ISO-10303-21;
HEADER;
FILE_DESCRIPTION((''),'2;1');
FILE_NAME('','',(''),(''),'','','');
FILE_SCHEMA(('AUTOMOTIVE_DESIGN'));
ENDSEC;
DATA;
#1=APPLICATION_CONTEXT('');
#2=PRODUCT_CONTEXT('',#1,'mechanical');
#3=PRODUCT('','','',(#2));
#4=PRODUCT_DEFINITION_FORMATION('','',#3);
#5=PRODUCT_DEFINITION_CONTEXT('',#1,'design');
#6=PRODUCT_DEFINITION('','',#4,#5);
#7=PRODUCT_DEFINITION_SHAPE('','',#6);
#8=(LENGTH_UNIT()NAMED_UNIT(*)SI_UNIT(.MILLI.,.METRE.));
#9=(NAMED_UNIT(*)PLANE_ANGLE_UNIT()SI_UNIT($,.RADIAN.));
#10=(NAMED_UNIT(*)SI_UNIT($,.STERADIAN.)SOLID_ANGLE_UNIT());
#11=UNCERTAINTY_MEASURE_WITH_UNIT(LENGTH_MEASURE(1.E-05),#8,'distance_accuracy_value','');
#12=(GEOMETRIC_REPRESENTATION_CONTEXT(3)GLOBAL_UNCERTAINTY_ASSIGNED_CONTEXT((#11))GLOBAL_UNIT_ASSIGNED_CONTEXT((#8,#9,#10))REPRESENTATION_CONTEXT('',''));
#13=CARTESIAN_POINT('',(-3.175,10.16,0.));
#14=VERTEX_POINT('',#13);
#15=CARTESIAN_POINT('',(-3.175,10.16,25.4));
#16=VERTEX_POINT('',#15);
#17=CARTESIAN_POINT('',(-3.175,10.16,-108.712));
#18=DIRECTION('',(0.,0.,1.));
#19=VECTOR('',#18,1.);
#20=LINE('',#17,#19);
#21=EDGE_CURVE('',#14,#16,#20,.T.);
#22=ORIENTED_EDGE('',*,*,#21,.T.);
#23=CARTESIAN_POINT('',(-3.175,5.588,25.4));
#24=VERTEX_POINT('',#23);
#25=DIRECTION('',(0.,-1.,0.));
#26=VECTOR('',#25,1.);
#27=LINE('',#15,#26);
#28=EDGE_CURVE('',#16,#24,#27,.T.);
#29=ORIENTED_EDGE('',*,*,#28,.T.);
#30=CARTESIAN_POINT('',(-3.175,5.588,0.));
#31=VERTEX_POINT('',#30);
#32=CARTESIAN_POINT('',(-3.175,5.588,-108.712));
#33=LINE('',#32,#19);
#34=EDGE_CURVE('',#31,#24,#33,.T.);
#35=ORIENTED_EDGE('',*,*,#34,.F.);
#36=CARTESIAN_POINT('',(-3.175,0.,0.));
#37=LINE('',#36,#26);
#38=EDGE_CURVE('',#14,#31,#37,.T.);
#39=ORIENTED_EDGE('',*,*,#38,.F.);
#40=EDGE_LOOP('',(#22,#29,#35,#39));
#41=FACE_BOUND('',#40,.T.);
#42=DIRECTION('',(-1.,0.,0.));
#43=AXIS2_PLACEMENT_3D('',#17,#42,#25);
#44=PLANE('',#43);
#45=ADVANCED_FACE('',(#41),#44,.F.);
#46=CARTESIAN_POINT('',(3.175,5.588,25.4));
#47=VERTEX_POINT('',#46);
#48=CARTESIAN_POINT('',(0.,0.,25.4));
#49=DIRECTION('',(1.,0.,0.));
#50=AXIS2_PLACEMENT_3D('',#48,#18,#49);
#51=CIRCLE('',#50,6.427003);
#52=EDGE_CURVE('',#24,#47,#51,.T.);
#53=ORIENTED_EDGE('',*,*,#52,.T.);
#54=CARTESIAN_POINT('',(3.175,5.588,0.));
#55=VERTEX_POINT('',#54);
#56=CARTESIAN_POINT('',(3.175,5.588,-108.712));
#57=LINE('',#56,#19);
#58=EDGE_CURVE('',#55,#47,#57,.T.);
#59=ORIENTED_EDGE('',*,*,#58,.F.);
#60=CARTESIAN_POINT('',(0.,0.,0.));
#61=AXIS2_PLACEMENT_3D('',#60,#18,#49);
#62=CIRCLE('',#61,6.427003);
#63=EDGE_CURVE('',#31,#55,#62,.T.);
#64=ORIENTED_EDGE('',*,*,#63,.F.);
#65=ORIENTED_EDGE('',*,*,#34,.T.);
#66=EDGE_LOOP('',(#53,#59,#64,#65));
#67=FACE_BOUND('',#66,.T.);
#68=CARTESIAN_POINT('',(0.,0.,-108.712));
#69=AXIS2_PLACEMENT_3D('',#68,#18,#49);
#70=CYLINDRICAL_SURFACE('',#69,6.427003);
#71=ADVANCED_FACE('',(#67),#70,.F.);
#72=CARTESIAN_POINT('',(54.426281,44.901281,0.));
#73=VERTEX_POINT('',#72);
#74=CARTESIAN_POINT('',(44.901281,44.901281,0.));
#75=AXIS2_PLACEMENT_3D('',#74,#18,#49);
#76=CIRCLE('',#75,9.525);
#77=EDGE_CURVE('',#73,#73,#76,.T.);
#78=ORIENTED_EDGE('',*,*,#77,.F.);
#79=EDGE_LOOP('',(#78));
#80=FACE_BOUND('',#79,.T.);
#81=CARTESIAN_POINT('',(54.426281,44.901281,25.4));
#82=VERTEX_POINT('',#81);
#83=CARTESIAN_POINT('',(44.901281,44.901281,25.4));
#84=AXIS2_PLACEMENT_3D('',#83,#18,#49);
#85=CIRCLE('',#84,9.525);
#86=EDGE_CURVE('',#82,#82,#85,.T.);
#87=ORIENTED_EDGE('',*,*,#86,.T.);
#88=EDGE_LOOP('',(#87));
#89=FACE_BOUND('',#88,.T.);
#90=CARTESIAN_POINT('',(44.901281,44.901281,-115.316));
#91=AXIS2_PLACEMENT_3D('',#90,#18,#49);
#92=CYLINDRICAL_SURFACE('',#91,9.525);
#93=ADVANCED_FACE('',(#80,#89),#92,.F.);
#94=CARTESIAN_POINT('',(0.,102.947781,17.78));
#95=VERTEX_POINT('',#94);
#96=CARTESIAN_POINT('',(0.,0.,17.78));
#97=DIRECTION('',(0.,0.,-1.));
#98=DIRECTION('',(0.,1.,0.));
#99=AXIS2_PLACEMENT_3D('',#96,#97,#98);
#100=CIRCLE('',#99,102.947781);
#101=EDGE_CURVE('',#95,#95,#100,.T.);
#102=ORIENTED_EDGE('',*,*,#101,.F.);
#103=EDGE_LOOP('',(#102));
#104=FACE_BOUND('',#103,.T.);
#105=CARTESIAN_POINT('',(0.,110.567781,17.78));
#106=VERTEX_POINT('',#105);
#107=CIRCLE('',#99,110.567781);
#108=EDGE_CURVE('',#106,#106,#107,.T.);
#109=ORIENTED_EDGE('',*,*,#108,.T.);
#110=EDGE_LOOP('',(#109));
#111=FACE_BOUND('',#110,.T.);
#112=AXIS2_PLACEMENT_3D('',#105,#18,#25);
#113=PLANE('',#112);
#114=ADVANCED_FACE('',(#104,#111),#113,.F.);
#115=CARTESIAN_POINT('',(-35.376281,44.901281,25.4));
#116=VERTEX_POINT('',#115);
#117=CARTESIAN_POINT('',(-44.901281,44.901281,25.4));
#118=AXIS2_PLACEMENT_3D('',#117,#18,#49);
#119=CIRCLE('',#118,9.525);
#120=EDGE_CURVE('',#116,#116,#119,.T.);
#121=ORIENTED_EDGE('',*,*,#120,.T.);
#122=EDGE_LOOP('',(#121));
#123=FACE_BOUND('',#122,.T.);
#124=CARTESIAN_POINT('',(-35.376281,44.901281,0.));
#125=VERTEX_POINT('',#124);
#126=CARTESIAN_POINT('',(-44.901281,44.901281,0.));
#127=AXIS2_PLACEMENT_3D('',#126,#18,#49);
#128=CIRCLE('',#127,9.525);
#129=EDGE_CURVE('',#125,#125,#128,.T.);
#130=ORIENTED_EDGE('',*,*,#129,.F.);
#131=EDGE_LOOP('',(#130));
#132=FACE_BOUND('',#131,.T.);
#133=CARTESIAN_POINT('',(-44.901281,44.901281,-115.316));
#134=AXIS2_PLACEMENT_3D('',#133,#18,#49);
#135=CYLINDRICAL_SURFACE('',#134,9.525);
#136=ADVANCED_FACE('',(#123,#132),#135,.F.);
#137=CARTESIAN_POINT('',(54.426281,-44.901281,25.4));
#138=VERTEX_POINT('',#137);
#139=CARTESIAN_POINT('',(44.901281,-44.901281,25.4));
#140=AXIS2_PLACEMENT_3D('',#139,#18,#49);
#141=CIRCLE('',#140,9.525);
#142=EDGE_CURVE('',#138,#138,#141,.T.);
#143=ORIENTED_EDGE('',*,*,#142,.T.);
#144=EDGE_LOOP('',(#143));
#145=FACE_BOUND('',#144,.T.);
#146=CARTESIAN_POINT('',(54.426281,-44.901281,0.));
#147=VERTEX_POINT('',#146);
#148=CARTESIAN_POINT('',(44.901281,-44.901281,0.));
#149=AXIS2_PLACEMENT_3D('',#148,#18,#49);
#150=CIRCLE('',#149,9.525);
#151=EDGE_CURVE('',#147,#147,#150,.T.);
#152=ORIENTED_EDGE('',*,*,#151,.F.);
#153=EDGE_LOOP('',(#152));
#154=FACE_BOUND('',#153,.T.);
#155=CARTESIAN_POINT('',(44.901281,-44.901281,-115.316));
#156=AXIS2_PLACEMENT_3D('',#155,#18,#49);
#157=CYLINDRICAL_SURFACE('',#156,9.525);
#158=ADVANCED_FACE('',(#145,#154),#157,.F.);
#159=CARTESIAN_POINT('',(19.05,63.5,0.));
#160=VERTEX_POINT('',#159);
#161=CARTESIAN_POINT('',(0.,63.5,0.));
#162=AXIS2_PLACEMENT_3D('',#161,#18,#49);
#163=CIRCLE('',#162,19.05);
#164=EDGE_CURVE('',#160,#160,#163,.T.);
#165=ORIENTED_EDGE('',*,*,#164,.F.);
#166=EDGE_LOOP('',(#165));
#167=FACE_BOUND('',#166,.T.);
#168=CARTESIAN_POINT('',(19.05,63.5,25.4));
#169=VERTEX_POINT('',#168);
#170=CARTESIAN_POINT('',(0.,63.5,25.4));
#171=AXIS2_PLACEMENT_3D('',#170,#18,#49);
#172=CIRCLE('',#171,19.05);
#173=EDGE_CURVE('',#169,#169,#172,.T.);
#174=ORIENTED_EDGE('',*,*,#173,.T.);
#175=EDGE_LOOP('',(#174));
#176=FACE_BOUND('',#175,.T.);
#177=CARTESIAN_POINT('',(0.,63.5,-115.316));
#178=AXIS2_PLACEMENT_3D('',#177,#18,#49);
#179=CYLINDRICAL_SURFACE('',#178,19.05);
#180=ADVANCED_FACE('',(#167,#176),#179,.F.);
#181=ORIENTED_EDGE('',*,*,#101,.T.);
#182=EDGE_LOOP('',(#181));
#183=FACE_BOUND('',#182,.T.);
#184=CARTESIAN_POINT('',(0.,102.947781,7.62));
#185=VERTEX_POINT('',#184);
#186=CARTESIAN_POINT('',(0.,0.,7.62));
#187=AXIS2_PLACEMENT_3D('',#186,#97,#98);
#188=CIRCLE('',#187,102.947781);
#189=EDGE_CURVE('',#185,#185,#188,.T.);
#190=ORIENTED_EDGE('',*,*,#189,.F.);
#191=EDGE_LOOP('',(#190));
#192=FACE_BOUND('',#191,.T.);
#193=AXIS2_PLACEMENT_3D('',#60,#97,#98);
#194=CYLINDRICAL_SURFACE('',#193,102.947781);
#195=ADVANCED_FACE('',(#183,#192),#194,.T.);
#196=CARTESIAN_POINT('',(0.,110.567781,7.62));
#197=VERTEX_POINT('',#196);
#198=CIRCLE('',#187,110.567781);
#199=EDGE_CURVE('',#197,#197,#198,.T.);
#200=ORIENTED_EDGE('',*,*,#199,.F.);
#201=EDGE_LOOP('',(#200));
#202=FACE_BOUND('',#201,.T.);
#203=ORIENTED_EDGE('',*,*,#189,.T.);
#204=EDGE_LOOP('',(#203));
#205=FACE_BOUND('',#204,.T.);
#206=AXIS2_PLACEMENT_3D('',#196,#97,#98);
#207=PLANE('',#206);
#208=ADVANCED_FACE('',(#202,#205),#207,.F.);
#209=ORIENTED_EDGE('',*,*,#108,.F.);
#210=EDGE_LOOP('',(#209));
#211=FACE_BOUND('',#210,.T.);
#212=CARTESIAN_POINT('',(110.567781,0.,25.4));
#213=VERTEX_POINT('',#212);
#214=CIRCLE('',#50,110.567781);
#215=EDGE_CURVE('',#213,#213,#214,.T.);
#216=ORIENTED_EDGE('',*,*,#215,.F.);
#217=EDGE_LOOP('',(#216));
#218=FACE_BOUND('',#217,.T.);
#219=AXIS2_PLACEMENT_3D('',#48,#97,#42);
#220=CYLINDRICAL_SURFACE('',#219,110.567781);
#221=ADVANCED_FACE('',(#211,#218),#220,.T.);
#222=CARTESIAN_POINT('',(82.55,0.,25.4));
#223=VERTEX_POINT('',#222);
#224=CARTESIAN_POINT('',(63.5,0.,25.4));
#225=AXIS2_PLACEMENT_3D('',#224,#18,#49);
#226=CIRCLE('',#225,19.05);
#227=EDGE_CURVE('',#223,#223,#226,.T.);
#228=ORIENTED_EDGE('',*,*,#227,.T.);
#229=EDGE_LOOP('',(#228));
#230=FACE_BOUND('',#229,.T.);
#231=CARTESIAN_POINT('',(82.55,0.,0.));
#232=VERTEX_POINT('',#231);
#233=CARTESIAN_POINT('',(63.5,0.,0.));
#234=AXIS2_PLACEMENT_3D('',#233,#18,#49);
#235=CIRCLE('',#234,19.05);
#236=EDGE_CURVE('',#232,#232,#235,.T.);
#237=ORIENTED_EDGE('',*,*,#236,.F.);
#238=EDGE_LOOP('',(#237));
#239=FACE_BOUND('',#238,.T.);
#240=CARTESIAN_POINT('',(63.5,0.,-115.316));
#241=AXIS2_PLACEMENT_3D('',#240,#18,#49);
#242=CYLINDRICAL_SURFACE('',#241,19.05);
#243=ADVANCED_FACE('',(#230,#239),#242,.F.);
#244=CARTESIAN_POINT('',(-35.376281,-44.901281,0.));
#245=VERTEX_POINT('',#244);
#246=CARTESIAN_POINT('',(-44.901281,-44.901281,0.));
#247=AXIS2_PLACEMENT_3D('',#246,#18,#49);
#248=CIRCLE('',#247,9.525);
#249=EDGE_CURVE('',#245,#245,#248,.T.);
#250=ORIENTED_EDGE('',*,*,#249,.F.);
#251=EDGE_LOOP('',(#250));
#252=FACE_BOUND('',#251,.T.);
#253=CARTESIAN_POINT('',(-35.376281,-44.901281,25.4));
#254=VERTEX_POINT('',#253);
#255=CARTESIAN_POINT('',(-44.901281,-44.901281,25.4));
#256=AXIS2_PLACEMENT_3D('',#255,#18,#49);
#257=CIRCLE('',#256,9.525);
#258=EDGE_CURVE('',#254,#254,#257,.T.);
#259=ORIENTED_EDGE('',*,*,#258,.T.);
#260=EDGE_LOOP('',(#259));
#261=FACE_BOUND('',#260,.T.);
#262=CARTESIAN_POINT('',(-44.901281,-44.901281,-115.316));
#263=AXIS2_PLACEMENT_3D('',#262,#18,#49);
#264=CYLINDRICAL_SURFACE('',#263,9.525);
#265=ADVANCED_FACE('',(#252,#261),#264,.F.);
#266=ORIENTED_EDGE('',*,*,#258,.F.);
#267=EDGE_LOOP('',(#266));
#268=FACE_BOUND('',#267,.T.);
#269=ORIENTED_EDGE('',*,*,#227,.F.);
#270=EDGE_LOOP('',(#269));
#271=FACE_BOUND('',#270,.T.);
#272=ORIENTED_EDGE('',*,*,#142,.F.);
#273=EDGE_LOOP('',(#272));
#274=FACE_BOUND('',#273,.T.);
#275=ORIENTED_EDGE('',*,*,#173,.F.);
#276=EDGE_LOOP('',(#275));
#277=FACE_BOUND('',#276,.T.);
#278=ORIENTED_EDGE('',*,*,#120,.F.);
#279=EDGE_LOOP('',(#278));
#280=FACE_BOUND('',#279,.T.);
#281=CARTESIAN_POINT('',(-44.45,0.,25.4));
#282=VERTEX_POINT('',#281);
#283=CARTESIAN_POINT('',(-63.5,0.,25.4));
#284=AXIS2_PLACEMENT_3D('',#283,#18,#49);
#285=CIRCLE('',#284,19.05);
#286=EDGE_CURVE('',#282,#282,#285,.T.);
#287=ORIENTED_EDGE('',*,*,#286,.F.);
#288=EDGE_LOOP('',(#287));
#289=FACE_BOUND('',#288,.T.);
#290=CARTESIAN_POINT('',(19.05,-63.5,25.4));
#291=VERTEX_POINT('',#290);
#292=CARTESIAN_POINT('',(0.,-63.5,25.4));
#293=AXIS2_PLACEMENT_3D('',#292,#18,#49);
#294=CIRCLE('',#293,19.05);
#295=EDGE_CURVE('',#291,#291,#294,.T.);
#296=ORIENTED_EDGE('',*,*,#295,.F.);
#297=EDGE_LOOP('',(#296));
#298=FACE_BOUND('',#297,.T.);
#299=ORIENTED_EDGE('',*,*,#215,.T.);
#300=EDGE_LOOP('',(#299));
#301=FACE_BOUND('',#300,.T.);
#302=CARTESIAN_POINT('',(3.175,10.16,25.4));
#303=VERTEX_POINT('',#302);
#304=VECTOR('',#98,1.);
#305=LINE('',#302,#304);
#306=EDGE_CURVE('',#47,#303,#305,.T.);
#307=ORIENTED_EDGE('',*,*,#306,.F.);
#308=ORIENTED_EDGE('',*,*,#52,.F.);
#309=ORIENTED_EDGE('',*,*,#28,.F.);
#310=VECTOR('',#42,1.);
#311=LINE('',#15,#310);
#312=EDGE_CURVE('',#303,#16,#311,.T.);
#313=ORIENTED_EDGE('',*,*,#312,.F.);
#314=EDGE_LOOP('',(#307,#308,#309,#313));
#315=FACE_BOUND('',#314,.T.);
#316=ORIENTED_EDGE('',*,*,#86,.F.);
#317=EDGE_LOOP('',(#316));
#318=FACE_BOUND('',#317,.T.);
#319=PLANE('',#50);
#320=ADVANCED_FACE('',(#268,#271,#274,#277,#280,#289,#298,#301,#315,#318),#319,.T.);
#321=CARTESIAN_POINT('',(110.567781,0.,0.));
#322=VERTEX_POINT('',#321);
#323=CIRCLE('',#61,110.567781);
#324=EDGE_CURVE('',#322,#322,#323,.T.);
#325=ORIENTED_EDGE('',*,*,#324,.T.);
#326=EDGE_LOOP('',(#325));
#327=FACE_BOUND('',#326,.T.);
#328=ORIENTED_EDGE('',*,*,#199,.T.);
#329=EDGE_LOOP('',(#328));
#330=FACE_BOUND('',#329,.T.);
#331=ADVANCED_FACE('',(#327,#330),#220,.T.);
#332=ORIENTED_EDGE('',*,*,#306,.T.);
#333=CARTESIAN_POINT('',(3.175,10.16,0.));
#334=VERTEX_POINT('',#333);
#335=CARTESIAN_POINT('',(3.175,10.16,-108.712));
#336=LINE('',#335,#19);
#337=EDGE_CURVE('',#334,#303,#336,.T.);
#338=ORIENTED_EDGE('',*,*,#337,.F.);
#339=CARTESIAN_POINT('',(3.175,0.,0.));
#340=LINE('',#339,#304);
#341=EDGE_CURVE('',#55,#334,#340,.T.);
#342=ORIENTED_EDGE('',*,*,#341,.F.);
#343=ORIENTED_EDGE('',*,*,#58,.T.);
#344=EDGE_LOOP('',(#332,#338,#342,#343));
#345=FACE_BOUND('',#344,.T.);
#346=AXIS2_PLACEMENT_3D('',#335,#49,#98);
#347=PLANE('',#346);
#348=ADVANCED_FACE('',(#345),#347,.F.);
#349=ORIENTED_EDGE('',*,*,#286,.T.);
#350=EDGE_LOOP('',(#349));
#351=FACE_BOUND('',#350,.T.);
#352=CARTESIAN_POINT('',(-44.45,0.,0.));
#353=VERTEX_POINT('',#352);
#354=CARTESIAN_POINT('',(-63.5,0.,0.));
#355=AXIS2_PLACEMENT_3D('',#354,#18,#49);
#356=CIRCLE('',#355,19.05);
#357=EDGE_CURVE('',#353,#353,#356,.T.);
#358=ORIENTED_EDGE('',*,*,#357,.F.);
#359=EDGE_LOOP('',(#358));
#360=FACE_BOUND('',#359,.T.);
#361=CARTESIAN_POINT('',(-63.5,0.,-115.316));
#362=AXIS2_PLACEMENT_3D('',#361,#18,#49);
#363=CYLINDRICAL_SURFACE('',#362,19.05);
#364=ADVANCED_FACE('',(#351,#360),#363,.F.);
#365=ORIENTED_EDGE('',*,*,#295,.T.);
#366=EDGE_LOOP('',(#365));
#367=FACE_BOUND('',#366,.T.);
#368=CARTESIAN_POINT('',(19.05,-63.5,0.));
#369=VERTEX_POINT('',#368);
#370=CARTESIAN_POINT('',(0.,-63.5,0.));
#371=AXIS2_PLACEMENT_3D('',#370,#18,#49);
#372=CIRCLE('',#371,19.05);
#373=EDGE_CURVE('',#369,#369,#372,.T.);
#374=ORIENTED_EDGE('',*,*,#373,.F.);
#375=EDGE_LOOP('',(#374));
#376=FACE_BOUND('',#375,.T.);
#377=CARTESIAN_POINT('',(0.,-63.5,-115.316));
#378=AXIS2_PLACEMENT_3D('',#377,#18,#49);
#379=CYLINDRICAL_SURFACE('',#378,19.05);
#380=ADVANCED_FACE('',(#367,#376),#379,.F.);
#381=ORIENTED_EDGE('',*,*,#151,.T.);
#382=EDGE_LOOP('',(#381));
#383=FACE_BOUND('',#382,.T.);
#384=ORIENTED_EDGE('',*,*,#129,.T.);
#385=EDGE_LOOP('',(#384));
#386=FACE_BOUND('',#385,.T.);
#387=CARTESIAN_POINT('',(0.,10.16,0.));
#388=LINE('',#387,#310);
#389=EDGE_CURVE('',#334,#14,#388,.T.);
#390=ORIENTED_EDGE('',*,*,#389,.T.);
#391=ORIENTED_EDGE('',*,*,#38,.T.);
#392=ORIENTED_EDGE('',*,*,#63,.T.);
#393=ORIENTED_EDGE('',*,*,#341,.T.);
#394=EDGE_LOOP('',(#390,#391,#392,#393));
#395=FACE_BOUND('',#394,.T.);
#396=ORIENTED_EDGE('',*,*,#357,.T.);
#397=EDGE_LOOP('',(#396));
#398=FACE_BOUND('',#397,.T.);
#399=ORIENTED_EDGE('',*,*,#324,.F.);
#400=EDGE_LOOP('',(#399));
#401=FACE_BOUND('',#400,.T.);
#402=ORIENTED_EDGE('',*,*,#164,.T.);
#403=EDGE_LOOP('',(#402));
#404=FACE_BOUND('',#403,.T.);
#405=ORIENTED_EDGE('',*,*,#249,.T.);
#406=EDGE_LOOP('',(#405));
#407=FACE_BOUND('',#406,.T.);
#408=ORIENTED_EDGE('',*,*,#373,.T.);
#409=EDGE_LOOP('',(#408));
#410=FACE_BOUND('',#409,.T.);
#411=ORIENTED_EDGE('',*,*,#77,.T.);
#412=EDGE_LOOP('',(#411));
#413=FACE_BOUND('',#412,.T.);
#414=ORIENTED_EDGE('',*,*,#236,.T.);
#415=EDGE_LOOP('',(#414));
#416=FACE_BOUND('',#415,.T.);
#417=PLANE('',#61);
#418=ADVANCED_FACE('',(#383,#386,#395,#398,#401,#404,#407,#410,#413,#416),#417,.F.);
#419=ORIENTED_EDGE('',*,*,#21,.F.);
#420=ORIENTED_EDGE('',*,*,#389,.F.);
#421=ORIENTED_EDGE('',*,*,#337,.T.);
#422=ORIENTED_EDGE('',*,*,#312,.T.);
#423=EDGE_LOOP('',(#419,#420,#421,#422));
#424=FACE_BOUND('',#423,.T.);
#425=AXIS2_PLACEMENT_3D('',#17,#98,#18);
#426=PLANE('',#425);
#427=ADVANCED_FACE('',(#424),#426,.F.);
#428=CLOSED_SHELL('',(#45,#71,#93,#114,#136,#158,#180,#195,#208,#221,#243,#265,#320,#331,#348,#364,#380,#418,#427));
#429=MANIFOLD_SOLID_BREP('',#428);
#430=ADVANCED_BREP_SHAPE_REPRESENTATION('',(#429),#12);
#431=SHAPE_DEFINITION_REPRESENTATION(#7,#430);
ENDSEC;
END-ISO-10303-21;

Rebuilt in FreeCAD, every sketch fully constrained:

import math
import FreeCAD as App
import Part
import Sketcher
Q = App.Units.Quantity


def add_polygon(sketch, points):
    """Adds a closed chain of lines whose ends are joined by coincident constraints."""
    first, n = sketch.GeometryCount, len(points)
    for a, b in zip(points, points[1:] + points[:1]):
        sketch.addGeometry(Part.LineSegment(App.Vector(*a, 0), App.Vector(*b, 0)), False)
    for i in range(n):
        sketch.addConstraint(Sketcher.Constraint("Coincident", first + i, 2, first + (i + 1) % n, 1))

doc = App.newDocument("Part")
body = doc.addObject("PartDesign::Body", "Body")

# Sketch on XY plane
sketch1 = body.newObject("Sketcher::SketchObject", "Sketch")
sketch1.AttachmentSupport = (doc.getObject("XY_Plane"), [""])
sketch1.MapMode = "FlatFace"
sketch1.addGeometry(Part.Circle(App.Vector(0, 0, 0), App.Vector(0, 0, 1), 110.567781), False)
sketch1.addConstraint([
    Sketcher.Constraint("Coincident", 0, 3, -1, 1),
    Sketcher.Constraint("Diameter", 0, Q("221.135562 mm")),
])
pad1 = body.newObject("PartDesign::Pad", "Pad")
pad1.Profile = sketch1
pad1.Length = Q("1 in")

# Sketch on XY plane
sketch2 = body.newObject("Sketcher::SketchObject", "Sketch001")
sketch2.AttachmentSupport = (doc.getObject("XY_Plane"), [""])
sketch2.MapMode = "FlatFace"
sketch2.AttachmentOffset = App.Placement(App.Vector(0, 0, 1 * 25.4), App.Rotation())
sketch2.addGeometry([
    Part.Circle(App.Vector(0, 63.5, 0), App.Vector(0, 0, 1), 19.05),  # 0
    Part.Circle(App.Vector(63.5, 0, 0), App.Vector(0, 0, 1), 19.05),  # 1
    Part.Circle(App.Vector(44.901281, -44.901281, 0), App.Vector(0, 0, 1), 9.525),  # 2
    Part.Circle(App.Vector(0, -63.5, 0), App.Vector(0, 0, 1), 19.05),  # 3
    Part.Circle(App.Vector(44.901281, 44.901281, 0), App.Vector(0, 0, 1), 9.525),  # 4
    Part.Circle(App.Vector(-44.901281, -44.901281, 0), App.Vector(0, 0, 1), 9.525),  # 5
    Part.Circle(App.Vector(-63.5, 0, 0), App.Vector(0, 0, 1), 19.05),  # 6
    Part.Circle(App.Vector(-44.901281, 44.901281, 0), App.Vector(0, 0, 1), 9.525),  # 7
], False)
sketch2.addConstraint([
    Sketcher.Constraint("Equal", 0, 1),
    Sketcher.Constraint("Equal", 1, 3),
    Sketcher.Constraint("Equal", 2, 4),
    Sketcher.Constraint("Equal", 4, 5),
    Sketcher.Constraint("Equal", 3, 6),
    Sketcher.Constraint("Equal", 5, 7),
    Sketcher.Constraint("Symmetric", 0, 3, 3, 3, -1, 1),
    Sketcher.Constraint("Symmetric", 4, 3, 5, 3, -1, 1),
    Sketcher.Constraint("Symmetric", 1, 3, 6, 3, -1, 1),
    Sketcher.Constraint("Symmetric", 2, 3, 7, 3, -1, 1),
    Sketcher.Constraint("Symmetric", 2, 3, 5, 3, -2),
    Sketcher.Constraint("PointOnObject", 0, 3, -2),
    Sketcher.Constraint("PointOnObject", 1, 3, -1),
    Sketcher.Constraint("Diameter", 0, Q("1.5 in")),
    Sketcher.Constraint("Diameter", 2, Q("0.75 in")),
    Sketcher.Constraint("DistanceY", 3, 3, 0, 3, Q("5 in")),
    Sketcher.Constraint("DistanceX", -1, 1, 1, 3, Q("2.5 in")),
    Sketcher.Constraint("DistanceX", -1, 1, 2, 3, Q("44.901281 mm")),
    Sketcher.Constraint("DistanceY", 2, 3, -1, 1, Q("44.901281 mm")),
])
pocket1 = body.newObject("PartDesign::Pocket", "Pocket")
pocket1.Profile = sketch2
pocket1.Length = Q("5.54 in")

# Sketch on XY plane
sketch3 = body.newObject("Sketcher::SketchObject", "Sketch002")
sketch3.AttachmentSupport = (doc.getObject("XY_Plane"), [""])
sketch3.MapMode = "FlatFace"
sketch3.AttachmentOffset = App.Placement(App.Vector(0, 0, 1 * 25.4), App.Rotation())
sketch3.addGeometry([
    Part.LineSegment(App.Vector(3.175, 10.16, 0), App.Vector(-3.175, 10.16, 0)),
    Part.LineSegment(App.Vector(-3.175, 10.16, 0), App.Vector(-3.175, 5.588, 0)),
    Part.ArcOfCircle(Part.Circle(App.Vector(0, 0, 0), App.Vector(0, 0, 1), 6.427003), math.radians(119.604451), math.radians(420.395549)),
    Part.LineSegment(App.Vector(3.175, 5.588, 0), App.Vector(3.175, 10.16, 0)),
], False)
sketch3.addConstraint([
    Sketcher.Constraint("Coincident", 0, 2, 1, 1),
    Sketcher.Constraint("Coincident", 1, 2, 2, 1),
    Sketcher.Constraint("Coincident", 2, 2, 3, 1),
    Sketcher.Constraint("Coincident", 3, 2, 0, 1),
    Sketcher.Constraint("Horizontal", 0),
    Sketcher.Constraint("Vertical", 1),
    Sketcher.Constraint("Vertical", 3),
    Sketcher.Constraint("Coincident", 2, 3, -1, 1),
    Sketcher.Constraint("Horizontal", 1, 2, 2, 2),
    Sketcher.Constraint("DistanceX", 0, 2, 0, 1, Q("0.25 in")),
    Sketcher.Constraint("DistanceY", 1, 2, 1, 1, Q("0.18 in")),
    Sketcher.Constraint("DistanceY", -1, 1, 0, 2, Q("0.4 in")),
])
pocket2 = body.newObject("PartDesign::Pocket", "Pocket001")
pocket2.Profile = sketch3
pocket2.Length = Q("5.28 in")

# Sketch on YZ plane
sketch4 = body.newObject("Sketcher::SketchObject", "Sketch003")
sketch4.AttachmentSupport = (doc.getObject("YZ_Plane"), [""])
sketch4.MapMode = "FlatFace"
add_polygon(sketch4, [(110.567781, 17.78), (102.947781, 17.78), (102.947781, 7.62), (110.567781, 7.62)])  # lines 0-3
sketch4.addConstraint([
    Sketcher.Constraint("Horizontal", 0),
    Sketcher.Constraint("Vertical", 1),
    Sketcher.Constraint("Horizontal", 2),
    Sketcher.Constraint("Vertical", 3),
    Sketcher.Constraint("DistanceX", 0, 2, 0, 1, Q("0.3 in")),
    Sketcher.Constraint("DistanceY", 1, 2, 1, 1, Q("0.4 in")),
    Sketcher.Constraint("DistanceY", -1, 1, 0, 2, Q("0.7 in")),
    Sketcher.Constraint("DistanceX", -1, 1, 0, 2, Q("102.947781 mm")),
])
groove = body.newObject("PartDesign::Groove", "Groove")
groove.Profile = sketch4
groove.ReferenceAxis = (sketch4, ["V_Axis"])
groove.Angle = 360

doc.recompute()
